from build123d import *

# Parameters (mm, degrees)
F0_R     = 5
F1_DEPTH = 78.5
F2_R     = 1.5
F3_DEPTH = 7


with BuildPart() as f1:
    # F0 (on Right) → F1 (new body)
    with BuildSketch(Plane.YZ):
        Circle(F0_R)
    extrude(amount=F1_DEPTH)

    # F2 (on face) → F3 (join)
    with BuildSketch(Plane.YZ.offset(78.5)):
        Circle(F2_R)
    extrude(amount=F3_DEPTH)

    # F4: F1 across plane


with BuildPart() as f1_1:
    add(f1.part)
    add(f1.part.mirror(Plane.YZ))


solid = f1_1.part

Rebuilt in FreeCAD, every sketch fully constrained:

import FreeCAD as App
import Part
import Sketcher
Q = App.Units.Quantity

doc = App.newDocument("Part")
body = doc.addObject("PartDesign::Body", "Body")

# Sketch on YZ plane
sketch1 = body.newObject("Sketcher::SketchObject", "Sketch")
sketch1.AttachmentSupport = (doc.getObject("YZ_Plane"), [""])
sketch1.MapMode = "FlatFace"
sketch1.addGeometry(Part.Circle(App.Vector(0, 0, 0), App.Vector(0, 0, 1), 5), False)
sketch1.addConstraint([
    Sketcher.Constraint("Coincident", 0, 3, -1, 1),
    Sketcher.Constraint("Diameter", 0, Q("10 mm")),
])
pad1 = body.newObject("PartDesign::Pad", "Pad")
pad1.Profile = sketch1
pad1.Length = 78.5

# Sketch on YZ plane
sketch2 = body.newObject("Sketcher::SketchObject", "Sketch001")
sketch2.AttachmentSupport = (doc.getObject("YZ_Plane"), [""])
sketch2.MapMode = "FlatFace"
sketch2.AttachmentOffset = App.Placement(App.Vector(0, 0, 78.5), App.Rotation())
sketch2.addGeometry(Part.Circle(App.Vector(0, 0, 0), App.Vector(0, 0, 1), 1.5), False)
sketch2.addConstraint([
    Sketcher.Constraint("Coincident", 0, 3, -1, 1),
    Sketcher.Constraint("Diameter", 0, Q("3 mm")),
])
pad2 = body.newObject("PartDesign::Pad", "Pad001")
pad2.Profile = sketch2
pad2.Length = 7
body2 = doc.addObject("PartDesign::Body", "Body001")
doc.recompute()

body2.BaseFeature = body
doc.recompute()

mirroring = doc.addObject("Part::Mirroring", "Mirroring")
mirroring.Source = body
mirroring.Base = App.Vector(0, 0, 0)
mirroring.Normal = App.Vector(1, 0, 0)
body3 = doc.addObject("PartDesign::Body", "Body002")
body3.BaseFeature = mirroring
boolean = body2.newObject("PartDesign::Boolean", "Boolean")
boolean.Type = "Fuse"
boolean.addObjects([body3])
doc.recompute()
mirroring.Visibility = False

doc.recompute()
